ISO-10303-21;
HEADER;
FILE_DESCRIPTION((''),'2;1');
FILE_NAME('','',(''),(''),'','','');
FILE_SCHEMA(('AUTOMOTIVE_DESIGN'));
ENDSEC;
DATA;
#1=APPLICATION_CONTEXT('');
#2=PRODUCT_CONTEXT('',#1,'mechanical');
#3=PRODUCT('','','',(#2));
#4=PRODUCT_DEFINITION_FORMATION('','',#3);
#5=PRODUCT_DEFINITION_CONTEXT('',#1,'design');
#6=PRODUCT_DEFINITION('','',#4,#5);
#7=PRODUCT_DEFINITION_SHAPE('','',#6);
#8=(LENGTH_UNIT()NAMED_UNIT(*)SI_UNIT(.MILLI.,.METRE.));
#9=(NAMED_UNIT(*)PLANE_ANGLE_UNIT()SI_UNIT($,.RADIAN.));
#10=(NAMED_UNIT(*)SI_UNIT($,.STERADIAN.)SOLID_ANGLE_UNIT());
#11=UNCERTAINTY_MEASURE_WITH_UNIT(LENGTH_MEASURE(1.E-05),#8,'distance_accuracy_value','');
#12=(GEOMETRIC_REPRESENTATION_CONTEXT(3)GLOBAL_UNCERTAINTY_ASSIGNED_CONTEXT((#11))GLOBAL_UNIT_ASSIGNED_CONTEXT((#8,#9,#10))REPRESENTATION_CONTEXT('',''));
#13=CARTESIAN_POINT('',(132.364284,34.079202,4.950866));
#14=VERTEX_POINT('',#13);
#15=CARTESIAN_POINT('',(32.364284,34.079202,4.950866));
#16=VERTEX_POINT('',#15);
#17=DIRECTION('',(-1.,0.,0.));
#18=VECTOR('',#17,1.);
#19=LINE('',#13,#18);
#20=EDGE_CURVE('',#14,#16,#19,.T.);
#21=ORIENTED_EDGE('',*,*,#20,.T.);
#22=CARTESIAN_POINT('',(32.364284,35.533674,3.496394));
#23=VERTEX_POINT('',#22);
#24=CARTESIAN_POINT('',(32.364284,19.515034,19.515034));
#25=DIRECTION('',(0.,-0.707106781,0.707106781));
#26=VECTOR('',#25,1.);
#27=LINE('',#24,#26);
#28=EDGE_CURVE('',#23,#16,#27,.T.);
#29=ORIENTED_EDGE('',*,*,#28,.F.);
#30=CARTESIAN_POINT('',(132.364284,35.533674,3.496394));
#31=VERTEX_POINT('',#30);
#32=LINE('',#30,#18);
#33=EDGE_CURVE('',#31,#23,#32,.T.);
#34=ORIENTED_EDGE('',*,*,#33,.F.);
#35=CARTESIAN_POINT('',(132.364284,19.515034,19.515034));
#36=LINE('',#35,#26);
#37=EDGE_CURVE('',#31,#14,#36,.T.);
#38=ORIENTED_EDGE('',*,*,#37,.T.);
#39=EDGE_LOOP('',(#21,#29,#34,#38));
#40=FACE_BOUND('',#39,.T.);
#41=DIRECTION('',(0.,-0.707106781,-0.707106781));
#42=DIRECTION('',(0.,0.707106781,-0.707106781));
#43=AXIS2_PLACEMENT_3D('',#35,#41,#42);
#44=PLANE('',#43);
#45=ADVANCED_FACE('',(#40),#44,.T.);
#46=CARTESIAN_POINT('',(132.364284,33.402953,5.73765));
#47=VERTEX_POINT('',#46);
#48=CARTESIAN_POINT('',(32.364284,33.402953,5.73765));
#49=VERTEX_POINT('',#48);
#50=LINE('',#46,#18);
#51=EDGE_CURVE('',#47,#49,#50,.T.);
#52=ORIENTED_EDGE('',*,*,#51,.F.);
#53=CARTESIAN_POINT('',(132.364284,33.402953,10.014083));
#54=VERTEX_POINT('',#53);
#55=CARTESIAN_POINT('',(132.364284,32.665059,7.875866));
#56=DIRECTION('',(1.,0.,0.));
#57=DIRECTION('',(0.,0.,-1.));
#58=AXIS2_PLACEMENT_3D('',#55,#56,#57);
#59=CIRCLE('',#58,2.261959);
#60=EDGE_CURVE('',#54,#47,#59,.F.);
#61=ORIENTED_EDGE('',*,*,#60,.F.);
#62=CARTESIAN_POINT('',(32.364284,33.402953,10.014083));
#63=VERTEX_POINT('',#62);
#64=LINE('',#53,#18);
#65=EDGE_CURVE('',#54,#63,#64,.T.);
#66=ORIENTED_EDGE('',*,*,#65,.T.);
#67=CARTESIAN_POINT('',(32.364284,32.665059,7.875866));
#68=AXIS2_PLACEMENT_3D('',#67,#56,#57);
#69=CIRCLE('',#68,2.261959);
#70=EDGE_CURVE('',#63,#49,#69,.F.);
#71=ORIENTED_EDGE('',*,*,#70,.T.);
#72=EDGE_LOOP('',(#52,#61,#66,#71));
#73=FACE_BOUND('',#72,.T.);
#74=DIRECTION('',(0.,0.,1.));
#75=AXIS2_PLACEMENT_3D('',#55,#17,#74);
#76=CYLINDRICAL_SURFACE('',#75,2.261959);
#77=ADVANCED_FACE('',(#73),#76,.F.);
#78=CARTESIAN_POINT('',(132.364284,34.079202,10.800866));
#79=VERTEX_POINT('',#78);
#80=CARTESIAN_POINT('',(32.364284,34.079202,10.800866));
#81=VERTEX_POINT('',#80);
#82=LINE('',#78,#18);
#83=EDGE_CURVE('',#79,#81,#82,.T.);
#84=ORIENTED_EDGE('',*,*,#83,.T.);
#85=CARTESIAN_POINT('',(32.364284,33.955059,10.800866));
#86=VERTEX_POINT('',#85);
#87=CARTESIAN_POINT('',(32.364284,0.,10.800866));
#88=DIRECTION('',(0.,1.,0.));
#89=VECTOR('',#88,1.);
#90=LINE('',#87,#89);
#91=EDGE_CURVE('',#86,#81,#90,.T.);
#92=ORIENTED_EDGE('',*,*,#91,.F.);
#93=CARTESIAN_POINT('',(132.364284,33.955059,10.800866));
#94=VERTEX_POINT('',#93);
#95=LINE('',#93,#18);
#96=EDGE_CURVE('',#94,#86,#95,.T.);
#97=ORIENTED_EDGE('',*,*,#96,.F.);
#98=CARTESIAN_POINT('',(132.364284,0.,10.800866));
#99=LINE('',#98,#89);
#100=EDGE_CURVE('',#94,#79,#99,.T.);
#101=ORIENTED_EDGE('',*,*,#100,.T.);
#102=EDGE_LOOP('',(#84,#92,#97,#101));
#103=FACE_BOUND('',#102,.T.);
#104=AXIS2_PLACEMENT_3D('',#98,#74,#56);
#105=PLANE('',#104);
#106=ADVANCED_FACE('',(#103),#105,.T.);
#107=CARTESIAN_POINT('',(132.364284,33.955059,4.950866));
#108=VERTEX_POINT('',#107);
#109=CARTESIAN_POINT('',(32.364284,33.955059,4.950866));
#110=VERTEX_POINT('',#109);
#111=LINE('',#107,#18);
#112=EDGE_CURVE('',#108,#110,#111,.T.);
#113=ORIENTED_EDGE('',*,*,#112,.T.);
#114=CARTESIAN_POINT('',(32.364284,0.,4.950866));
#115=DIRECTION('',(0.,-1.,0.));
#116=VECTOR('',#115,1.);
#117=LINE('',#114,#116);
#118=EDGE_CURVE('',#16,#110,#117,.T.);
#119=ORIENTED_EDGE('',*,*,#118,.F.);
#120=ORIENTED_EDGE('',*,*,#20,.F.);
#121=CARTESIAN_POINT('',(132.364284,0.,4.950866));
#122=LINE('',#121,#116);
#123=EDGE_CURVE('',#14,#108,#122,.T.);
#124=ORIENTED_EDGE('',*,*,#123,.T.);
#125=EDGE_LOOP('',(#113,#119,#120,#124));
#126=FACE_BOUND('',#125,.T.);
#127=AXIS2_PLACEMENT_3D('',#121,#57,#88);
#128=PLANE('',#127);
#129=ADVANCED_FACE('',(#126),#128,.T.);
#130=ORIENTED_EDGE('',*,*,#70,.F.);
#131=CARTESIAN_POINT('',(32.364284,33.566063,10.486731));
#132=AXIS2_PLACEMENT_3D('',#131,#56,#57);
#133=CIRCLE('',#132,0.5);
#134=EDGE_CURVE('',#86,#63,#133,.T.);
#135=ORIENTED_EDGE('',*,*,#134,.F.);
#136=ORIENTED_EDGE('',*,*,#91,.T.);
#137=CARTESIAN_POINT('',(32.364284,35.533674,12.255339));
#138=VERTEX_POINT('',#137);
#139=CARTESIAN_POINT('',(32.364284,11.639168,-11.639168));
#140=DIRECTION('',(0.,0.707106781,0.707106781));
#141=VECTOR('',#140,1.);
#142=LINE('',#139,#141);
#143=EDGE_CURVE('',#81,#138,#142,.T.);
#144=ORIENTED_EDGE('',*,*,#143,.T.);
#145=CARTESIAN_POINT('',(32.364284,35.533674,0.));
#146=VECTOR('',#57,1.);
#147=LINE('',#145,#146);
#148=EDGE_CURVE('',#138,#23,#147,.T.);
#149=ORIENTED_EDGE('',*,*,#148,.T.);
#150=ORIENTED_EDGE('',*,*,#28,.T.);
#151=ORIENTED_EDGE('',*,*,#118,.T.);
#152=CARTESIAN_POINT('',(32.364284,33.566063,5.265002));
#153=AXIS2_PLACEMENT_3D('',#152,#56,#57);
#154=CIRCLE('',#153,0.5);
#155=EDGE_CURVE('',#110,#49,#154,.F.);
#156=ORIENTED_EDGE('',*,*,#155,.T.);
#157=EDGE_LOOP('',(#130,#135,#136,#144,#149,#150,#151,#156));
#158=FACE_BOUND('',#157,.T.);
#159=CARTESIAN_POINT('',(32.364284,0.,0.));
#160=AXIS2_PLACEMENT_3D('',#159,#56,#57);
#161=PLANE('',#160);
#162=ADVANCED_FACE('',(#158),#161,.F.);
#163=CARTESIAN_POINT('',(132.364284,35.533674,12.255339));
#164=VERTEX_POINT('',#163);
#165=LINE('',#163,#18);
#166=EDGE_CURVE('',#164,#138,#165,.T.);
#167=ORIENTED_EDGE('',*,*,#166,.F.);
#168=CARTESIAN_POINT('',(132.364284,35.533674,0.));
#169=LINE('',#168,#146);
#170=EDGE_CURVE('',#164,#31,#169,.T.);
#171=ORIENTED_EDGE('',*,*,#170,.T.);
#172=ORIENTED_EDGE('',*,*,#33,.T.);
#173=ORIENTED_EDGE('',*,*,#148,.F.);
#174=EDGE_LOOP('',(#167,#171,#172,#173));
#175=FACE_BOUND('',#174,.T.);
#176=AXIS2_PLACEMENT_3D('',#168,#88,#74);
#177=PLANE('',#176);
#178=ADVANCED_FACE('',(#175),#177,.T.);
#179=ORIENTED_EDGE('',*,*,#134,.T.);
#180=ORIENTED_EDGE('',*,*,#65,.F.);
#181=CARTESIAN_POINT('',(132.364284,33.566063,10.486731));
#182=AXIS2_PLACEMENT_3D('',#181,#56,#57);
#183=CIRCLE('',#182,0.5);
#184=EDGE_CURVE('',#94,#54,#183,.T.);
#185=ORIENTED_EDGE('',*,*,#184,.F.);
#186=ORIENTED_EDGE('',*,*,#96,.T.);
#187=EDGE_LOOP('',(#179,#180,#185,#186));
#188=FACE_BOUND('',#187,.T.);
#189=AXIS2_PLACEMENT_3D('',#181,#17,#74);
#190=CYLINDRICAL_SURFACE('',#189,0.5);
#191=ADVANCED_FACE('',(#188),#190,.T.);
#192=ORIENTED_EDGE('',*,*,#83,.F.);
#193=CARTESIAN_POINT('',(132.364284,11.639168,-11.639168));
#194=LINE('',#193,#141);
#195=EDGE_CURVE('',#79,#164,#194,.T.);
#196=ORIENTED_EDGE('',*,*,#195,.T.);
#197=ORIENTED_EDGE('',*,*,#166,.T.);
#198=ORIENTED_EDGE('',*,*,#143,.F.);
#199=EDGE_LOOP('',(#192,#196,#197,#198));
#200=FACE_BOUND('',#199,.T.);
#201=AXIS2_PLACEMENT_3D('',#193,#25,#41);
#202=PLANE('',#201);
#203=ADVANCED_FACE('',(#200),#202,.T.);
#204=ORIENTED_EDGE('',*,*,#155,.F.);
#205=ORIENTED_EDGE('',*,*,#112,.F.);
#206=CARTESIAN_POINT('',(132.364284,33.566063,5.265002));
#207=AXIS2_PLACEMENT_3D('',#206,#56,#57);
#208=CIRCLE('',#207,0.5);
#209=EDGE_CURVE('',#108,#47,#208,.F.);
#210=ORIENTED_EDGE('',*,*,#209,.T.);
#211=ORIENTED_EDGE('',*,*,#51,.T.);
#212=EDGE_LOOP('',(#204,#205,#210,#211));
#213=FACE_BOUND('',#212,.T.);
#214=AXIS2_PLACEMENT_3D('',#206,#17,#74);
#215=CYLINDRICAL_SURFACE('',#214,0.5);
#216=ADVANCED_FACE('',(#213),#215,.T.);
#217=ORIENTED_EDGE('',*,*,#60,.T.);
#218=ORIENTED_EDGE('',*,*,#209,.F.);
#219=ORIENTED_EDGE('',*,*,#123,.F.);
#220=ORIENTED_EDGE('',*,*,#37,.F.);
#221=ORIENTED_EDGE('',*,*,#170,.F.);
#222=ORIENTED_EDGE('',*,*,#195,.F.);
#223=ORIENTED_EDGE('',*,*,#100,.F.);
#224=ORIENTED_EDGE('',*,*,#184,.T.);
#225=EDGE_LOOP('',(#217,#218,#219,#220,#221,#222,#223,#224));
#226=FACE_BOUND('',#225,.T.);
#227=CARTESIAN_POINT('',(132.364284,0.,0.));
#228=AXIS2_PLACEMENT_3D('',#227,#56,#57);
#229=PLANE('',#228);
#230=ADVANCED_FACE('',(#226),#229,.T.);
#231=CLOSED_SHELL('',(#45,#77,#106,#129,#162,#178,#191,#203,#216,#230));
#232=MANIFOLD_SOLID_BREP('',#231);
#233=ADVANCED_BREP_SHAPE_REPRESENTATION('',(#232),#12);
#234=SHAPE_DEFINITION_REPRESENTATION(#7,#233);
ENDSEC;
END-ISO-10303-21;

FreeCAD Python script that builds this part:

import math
import FreeCAD as App
import Part
import Sketcher

doc = App.newDocument("Part")
params = doc.addObject("Spreadsheet::Sheet", "Params")
for row, (alias, value) in enumerate([
    ("sketch1_radius", "0.5 mm"),
    ("pad1_length", "100 mm"),
], start=1):
    params.set(f"A{row}", alias)
    params.set(f"B{row}", "=" + value)
    params.setAlias(f"B{row}", alias)

body = doc.addObject("PartDesign::Body", "Body")

sketch1 = doc.addObject("Sketcher::SketchObject", "Sketch")
body.addObject(sketch1)
sketch1.AttachmentSupport = (doc.YZ_Plane, [""])
sketch1.MapMode = "FlatFace"
sketch1.AttachmentOffset = App.Placement(App.Vector(0, 0, 32.364284), App.Rotation())
sketch1.addGeometry([
    Part.ArcOfCircle(Part.Circle(App.Vector(33.566063, 10.486731, 0), App.Vector(0, 0, 1), 0.5), math.radians(38.922736), math.radians(250.960566)),
    Part.ArcOfCircle(Part.Circle(App.Vector(32.665059, 7.875866, 0), App.Vector(0, 0, 1), 2.261959), math.radians(-70.960566), math.radians(70.960566)),
    Part.ArcOfCircle(Part.Circle(App.Vector(33.566063, 5.265002, 0), App.Vector(0, 0, 1), 0.5), math.radians(109.039434), math.radians(321.077264)),
    Part.LineSegment(App.Vector(33.955059, 4.950866, 0), App.Vector(34.079202, 4.950866, 0)),
    Part.LineSegment(App.Vector(34.079202, 4.950866, 0), App.Vector(35.533674, 3.496394, 0)),
    Part.LineSegment(App.Vector(35.533674, 3.496394, 0), App.Vector(35.533674, 12.255339, 0)),
    Part.LineSegment(App.Vector(35.533674, 12.255339, 0), App.Vector(34.079202, 10.800866, 0)),
    Part.LineSegment(App.Vector(34.079202, 10.800866, 0), App.Vector(33.955059, 10.800866, 0)),
], False)
sketch1.addConstraint([
    Sketcher.Constraint("Tangent", 0, 2, 1, 2),
    Sketcher.Constraint("Tangent", 1, 1, 2, 1),
    Sketcher.Constraint("Coincident", 2, 2, 3, 1),
    Sketcher.Constraint("Coincident", 3, 2, 4, 1),
    Sketcher.Constraint("Coincident", 4, 2, 5, 1),
    Sketcher.Constraint("Coincident", 5, 2, 6, 1),
    Sketcher.Constraint("Coincident", 6, 2, 7, 1),
    Sketcher.Constraint("Coincident", 7, 2, 0, 1),
    Sketcher.Constraint("Horizontal", 3),
    Sketcher.Constraint("Vertical", 5),
    Sketcher.Constraint("Horizontal", 7),
    Sketcher.Constraint("Equal", 0, 2),
    Sketcher.Constraint("Perpendicular", 4, 6),
    Sketcher.Constraint("Vertical", 0, 3, 2, 3),
    Sketcher.Constraint("Vertical", 3, 2, 6, 2),
    Sketcher.Constraint("Vertical", 2, 2, 7, 2),
    Sketcher.Constraint("Equal", 4, 6),
    Sketcher.Constraint("Radius", 0, 0.5),
    Sketcher.Constraint("Radius", 1, 2.261959),
    Sketcher.Constraint("DistanceX", 1, 3, 2, 2, 1.29),
    Sketcher.Constraint("DistanceY", 2, 2, 1, 3, 2.925),
    Sketcher.Constraint("DistanceX", -1, 1, 3, 2, 34.079202),
    Sketcher.Constraint("DistanceX", 3, 1, 3, 2, 0.124142),
    Sketcher.Constraint("DistanceY", 5, 1, 5, 2, 8.758944),
    Sketcher.Constraint("DistanceY", -1, 1, 0, 3, 10.486731),
])
sketch1.setExpression("Constraints[17]", "Params.sketch1_radius")
pad1 = doc.addObject("PartDesign::Pad", "Pad")
body.addObject(pad1)
pad1.Profile = sketch1
pad1.setExpression("Length", "Params.pad1_length")

doc.recompute()
